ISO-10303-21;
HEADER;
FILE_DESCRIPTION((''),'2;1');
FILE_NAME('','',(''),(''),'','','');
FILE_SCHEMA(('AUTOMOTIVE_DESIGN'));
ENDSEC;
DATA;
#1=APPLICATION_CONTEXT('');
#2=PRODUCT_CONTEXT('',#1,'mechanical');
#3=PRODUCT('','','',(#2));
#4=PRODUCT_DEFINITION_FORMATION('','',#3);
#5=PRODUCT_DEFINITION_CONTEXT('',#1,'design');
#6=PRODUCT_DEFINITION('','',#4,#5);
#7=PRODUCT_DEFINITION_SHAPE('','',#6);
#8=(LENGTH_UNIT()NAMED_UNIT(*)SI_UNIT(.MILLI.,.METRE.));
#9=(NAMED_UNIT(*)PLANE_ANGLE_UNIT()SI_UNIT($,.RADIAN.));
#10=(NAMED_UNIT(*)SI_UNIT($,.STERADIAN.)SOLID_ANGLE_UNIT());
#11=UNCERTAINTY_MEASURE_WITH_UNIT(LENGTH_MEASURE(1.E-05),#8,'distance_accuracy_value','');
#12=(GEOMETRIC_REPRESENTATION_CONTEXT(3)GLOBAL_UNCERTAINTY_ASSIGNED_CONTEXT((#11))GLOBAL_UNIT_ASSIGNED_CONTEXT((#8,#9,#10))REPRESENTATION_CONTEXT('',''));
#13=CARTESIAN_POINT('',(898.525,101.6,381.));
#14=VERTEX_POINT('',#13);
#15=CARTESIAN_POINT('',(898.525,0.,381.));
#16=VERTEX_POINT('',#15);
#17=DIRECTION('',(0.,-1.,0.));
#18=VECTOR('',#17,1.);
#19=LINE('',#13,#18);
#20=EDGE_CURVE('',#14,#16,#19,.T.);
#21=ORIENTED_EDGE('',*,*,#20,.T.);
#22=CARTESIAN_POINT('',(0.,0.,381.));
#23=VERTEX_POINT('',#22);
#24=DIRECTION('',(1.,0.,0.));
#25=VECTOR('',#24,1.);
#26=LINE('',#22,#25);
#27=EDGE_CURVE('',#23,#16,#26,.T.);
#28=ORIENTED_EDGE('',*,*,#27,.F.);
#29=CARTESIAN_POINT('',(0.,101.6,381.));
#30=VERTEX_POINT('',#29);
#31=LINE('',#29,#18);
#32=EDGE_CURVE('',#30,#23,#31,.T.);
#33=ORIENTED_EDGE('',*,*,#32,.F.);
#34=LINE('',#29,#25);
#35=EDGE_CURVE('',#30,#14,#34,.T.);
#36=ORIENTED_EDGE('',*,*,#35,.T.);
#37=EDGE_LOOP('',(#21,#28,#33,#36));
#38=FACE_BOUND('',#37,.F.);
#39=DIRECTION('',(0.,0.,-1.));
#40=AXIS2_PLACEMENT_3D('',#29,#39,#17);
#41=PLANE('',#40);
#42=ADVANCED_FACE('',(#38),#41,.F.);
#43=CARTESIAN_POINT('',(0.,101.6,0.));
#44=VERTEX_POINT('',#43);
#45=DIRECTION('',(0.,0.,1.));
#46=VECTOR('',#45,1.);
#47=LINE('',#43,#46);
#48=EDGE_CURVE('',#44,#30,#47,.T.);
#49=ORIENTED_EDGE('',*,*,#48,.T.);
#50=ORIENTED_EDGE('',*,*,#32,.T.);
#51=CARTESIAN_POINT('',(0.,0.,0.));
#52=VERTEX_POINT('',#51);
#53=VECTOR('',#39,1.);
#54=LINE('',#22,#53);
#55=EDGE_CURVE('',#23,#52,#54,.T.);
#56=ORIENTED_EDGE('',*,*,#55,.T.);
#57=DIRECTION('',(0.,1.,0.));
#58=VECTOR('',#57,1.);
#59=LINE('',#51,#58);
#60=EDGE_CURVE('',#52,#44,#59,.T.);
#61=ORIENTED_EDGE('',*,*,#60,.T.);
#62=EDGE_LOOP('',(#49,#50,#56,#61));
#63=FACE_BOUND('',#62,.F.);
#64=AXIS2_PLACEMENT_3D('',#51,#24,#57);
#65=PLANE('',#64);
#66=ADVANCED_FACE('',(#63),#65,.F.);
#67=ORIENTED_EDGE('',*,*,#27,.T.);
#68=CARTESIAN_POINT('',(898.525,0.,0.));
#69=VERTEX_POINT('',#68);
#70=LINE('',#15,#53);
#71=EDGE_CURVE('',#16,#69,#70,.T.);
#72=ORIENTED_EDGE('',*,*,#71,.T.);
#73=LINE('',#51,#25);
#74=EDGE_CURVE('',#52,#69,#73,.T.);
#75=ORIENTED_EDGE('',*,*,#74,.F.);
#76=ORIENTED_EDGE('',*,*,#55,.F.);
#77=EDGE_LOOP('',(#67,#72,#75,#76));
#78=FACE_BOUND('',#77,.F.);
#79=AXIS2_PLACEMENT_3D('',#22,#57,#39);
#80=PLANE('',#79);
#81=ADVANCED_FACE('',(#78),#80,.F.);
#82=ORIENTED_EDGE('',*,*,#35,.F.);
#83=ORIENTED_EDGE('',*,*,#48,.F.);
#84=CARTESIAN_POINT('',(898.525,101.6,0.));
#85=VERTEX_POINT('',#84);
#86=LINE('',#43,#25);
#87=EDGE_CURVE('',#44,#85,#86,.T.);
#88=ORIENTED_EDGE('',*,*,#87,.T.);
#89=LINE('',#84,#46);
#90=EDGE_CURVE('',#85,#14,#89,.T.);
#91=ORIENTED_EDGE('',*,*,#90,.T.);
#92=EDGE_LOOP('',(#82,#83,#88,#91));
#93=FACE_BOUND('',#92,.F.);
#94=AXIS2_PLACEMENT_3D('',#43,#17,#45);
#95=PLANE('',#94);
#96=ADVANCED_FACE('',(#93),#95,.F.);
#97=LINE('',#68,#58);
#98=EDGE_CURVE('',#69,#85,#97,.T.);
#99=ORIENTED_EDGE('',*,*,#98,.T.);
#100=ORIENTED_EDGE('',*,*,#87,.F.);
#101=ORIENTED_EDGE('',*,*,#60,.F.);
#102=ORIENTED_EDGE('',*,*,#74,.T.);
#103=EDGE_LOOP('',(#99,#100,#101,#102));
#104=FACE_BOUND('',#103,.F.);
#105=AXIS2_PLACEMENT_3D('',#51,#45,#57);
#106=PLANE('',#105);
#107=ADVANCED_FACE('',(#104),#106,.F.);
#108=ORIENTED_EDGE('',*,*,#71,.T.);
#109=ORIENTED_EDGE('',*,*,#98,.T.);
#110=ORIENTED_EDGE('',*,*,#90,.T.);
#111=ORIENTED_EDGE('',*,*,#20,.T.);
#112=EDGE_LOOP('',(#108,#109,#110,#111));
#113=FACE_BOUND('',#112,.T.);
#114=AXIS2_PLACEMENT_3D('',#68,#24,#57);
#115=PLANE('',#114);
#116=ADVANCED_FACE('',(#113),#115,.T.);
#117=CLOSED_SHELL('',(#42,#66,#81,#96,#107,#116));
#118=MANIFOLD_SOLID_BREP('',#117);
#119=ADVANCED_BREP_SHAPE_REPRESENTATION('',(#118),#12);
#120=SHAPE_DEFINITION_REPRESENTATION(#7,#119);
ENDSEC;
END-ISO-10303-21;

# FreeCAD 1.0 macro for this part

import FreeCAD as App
import Part
import Sketcher
Q = App.Units.Quantity


def add_polygon(sketch, points):
    """Adds a closed chain of lines whose ends are joined by coincident constraints."""
    first, n = sketch.GeometryCount, len(points)
    for a, b in zip(points, points[1:] + points[:1]):
        sketch.addGeometry(Part.LineSegment(App.Vector(*a, 0), App.Vector(*b, 0)), False)
    for i in range(n):
        sketch.addConstraint(Sketcher.Constraint("Coincident", first + i, 2, first + (i + 1) % n, 1))

doc = App.newDocument("Part")
body = doc.addObject("PartDesign::Body", "Body")

# Sketch on YZ plane
sketch1 = body.newObject("Sketcher::SketchObject", "Sketch")
sketch1.AttachmentSupport = (doc.getObject("YZ_Plane"), [""])
sketch1.MapMode = "FlatFace"
add_polygon(sketch1, [(0, 381), (0, 0), (101.6, 0), (101.6, 381)])  # lines 0-3
sketch1.addConstraint(Sketcher.Constraint("Vertical", 0))
sketch1.addConstraint(Sketcher.Constraint("Horizontal", 1))
sketch1.addConstraint(Sketcher.Constraint("Vertical", 2))
sketch1.addConstraint(Sketcher.Constraint("Horizontal", 3))
sketch1.addConstraint(Sketcher.Constraint("Coincident", 0, 2, -1, 1))
sketch1.addConstraint(Sketcher.Constraint("DistanceX", 1, 1, 1, 2, Q("4 in")))
sketch1.addConstraint(Sketcher.Constraint("DistanceY", 0, 2, 0, 1, Q("15 in")))
pad1 = body.newObject("PartDesign::Pad", "Pad")
pad1.Profile = sketch1
pad1.Length = Q("35.375 in")

doc.recompute()
